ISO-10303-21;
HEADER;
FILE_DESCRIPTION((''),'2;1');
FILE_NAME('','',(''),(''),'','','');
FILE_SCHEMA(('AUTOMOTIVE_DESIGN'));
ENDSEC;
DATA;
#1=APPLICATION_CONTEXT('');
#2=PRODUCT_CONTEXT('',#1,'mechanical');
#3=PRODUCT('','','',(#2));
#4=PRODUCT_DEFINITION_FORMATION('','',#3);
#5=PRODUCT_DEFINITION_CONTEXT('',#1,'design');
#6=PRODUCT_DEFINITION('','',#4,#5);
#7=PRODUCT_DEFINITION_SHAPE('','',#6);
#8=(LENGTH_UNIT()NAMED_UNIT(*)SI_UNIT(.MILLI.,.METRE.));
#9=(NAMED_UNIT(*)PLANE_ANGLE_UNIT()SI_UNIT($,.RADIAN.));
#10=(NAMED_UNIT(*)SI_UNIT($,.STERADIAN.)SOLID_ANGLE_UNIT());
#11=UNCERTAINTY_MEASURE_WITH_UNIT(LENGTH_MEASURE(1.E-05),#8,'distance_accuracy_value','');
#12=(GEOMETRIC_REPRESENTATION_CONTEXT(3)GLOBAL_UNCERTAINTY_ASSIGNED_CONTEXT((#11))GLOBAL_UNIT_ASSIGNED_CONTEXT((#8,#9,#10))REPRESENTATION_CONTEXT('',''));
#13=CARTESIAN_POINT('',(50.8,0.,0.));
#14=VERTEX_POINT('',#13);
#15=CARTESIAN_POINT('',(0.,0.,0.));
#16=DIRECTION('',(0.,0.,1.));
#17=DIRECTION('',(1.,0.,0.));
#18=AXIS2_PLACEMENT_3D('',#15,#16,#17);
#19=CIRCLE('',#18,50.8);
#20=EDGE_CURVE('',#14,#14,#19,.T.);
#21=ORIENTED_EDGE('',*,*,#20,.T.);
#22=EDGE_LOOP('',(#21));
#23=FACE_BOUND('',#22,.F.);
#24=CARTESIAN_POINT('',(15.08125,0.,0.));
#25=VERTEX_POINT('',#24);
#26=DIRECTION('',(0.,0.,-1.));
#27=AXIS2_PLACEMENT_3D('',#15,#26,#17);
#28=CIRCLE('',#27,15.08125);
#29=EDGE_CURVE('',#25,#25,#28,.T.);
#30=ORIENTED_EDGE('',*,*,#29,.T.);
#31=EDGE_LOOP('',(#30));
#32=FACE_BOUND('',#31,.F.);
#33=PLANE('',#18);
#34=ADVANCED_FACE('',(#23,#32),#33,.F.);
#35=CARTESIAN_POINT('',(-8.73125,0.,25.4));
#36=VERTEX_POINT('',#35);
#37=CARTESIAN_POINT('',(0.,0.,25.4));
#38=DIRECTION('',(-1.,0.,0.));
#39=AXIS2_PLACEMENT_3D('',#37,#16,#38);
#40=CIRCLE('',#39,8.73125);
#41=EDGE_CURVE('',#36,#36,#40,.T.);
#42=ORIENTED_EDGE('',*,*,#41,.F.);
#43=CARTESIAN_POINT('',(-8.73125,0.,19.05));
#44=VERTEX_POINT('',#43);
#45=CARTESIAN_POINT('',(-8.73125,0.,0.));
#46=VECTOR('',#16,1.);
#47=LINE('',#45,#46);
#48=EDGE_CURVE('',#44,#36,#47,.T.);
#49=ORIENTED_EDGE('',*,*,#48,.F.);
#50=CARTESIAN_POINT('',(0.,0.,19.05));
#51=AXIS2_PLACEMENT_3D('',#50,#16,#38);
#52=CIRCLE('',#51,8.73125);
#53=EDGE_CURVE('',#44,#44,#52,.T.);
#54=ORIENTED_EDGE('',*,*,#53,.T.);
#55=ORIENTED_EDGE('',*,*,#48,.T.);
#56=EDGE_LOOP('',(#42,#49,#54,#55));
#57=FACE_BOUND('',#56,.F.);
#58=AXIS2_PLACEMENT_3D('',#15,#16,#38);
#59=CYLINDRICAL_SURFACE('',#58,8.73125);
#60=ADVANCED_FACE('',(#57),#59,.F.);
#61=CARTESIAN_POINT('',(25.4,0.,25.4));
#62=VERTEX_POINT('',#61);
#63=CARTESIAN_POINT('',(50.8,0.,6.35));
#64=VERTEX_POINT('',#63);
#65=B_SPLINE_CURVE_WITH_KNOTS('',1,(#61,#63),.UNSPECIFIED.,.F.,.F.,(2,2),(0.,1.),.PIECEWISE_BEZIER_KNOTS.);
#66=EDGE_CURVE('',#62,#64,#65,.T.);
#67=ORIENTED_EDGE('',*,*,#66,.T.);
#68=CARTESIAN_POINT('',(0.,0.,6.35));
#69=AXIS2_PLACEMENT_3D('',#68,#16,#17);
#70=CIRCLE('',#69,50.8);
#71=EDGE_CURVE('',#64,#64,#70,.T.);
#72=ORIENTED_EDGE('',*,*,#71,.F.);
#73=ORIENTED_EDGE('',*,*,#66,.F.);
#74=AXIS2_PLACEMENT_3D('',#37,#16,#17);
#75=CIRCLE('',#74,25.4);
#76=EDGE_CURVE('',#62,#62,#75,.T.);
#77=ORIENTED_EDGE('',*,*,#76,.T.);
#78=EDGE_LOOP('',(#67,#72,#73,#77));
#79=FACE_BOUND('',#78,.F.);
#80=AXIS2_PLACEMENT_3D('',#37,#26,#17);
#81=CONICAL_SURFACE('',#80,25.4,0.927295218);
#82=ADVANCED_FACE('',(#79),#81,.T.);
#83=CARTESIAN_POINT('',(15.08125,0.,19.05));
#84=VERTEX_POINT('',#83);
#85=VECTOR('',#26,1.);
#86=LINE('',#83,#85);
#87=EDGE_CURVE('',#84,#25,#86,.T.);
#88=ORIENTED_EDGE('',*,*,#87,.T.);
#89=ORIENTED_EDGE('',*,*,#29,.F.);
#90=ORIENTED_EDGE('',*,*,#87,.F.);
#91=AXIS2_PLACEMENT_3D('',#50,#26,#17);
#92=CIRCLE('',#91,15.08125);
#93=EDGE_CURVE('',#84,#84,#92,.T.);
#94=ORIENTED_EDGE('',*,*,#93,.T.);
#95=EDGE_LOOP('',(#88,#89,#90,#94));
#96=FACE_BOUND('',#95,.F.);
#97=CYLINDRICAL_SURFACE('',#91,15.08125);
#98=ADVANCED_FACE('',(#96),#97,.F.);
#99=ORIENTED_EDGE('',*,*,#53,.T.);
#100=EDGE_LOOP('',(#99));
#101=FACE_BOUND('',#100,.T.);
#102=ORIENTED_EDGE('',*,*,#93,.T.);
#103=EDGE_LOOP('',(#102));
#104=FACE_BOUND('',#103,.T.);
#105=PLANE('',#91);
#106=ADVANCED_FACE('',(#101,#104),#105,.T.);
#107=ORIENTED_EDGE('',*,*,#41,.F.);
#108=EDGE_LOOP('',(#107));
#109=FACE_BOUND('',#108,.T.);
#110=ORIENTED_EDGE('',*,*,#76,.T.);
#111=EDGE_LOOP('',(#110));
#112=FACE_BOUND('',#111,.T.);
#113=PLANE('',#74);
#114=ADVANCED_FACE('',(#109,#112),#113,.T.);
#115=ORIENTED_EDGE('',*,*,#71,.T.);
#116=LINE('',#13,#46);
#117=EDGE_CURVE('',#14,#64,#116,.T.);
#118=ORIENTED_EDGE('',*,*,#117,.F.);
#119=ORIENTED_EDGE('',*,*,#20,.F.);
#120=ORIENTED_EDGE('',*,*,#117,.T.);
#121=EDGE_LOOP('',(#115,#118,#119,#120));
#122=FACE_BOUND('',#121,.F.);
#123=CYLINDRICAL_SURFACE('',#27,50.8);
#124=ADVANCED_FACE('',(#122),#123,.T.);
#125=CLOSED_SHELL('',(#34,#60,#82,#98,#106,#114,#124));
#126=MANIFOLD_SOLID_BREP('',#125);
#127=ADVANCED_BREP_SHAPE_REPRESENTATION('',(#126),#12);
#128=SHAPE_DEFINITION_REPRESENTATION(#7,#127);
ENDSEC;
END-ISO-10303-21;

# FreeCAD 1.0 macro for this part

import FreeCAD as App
import Part
import Sketcher

V = App.Vector
Q = App.Units.Quantity

doc = App.newDocument("Part")
body = doc.addObject("PartDesign::Body", "Body")

# Sketch on XY plane
sketch1 = body.newObject("Sketcher::SketchObject", "Sketch")
sketch1.AttachmentSupport = (doc.getObject("XY_Plane"), [""])
sketch1.MapMode = "FlatFace"
sketch1.addGeometry(Part.Circle(V(0, 0, 0), V(0, 0, 1), 50.8), False)
sketch1.addConstraint(Sketcher.Constraint("Coincident", 0, 3, -1, 1))
sketch1.addConstraint(Sketcher.Constraint("Diameter", 0, Q("4 in")))
pad1 = body.newObject("PartDesign::Pad", "Pad")
pad1.Profile = sketch1
pad1.Length = Q("0.25 in")

# Sketch on XY plane
sketch2 = body.newObject("Sketcher::SketchObject", "Sketch001")
sketch2.AttachmentSupport = (doc.getObject("XY_Plane"), [""])
sketch2.MapMode = "FlatFace"
sketch2.AttachmentOffset = App.Placement(V(0, 0, 1 * 25.4), App.Rotation())
sketch2.addGeometry(Part.Circle(V(0, 0, 0), V(0, 0, 1), 25.4), False)
sketch2.addConstraint(Sketcher.Constraint("Coincident", 0, 3, -1, 1))
sketch2.addConstraint(Sketcher.Constraint("Diameter", 0, Q("2 in")))

# Sketch on XY plane
sketch3 = body.newObject("Sketcher::SketchObject", "Sketch002")
sketch3.AttachmentSupport = (doc.getObject("XY_Plane"), [""])
sketch3.MapMode = "FlatFace"
sketch3.AttachmentOffset = App.Placement(V(0, 0, 0.25 * 25.4), App.Rotation())
sketch3.addGeometry(Part.Circle(V(0, 0, 0), V(0, 0, 1), 50.8), False)
sketch3.addConstraint(Sketcher.Constraint("Coincident", 0, 3, -1, 1))
sketch3.addConstraint(Sketcher.Constraint("Diameter", 0, Q("4 in")))

additiveloft = body.newObject("PartDesign::AdditiveLoft", "AdditiveLoft")
additiveloft.Profile = sketch2
additiveloft.Sections = [sketch3]

# Sketch on XY plane
sketch4 = body.newObject("Sketcher::SketchObject", "Sketch003")
sketch4.AttachmentSupport = (doc.getObject("XY_Plane"), [""])
sketch4.MapMode = "FlatFace"
sketch4.addGeometry(Part.Circle(V(0, 0, 0), V(0, 0, 1), 8.73125), False)
sketch4.addConstraint(Sketcher.Constraint("Coincident", 0, 3, -1, 1))
sketch4.addConstraint(Sketcher.Constraint("Diameter", 0, Q("0.6875 in")))
doc.recompute()
hole = body.newObject("PartDesign::Hole", "Hole")
hole.Profile = sketch4
hole.ThreadType = "None"
hole.Diameter = Q("0.6875 in")
hole.DepthType = "ThroughAll"
hole.HoleCutType = "Counterbore"
hole.HoleCutDiameter = Q("1.1875 in")
hole.HoleCutDepth = Q("0.75 in")
hole.Reversed = True

doc.recompute()
